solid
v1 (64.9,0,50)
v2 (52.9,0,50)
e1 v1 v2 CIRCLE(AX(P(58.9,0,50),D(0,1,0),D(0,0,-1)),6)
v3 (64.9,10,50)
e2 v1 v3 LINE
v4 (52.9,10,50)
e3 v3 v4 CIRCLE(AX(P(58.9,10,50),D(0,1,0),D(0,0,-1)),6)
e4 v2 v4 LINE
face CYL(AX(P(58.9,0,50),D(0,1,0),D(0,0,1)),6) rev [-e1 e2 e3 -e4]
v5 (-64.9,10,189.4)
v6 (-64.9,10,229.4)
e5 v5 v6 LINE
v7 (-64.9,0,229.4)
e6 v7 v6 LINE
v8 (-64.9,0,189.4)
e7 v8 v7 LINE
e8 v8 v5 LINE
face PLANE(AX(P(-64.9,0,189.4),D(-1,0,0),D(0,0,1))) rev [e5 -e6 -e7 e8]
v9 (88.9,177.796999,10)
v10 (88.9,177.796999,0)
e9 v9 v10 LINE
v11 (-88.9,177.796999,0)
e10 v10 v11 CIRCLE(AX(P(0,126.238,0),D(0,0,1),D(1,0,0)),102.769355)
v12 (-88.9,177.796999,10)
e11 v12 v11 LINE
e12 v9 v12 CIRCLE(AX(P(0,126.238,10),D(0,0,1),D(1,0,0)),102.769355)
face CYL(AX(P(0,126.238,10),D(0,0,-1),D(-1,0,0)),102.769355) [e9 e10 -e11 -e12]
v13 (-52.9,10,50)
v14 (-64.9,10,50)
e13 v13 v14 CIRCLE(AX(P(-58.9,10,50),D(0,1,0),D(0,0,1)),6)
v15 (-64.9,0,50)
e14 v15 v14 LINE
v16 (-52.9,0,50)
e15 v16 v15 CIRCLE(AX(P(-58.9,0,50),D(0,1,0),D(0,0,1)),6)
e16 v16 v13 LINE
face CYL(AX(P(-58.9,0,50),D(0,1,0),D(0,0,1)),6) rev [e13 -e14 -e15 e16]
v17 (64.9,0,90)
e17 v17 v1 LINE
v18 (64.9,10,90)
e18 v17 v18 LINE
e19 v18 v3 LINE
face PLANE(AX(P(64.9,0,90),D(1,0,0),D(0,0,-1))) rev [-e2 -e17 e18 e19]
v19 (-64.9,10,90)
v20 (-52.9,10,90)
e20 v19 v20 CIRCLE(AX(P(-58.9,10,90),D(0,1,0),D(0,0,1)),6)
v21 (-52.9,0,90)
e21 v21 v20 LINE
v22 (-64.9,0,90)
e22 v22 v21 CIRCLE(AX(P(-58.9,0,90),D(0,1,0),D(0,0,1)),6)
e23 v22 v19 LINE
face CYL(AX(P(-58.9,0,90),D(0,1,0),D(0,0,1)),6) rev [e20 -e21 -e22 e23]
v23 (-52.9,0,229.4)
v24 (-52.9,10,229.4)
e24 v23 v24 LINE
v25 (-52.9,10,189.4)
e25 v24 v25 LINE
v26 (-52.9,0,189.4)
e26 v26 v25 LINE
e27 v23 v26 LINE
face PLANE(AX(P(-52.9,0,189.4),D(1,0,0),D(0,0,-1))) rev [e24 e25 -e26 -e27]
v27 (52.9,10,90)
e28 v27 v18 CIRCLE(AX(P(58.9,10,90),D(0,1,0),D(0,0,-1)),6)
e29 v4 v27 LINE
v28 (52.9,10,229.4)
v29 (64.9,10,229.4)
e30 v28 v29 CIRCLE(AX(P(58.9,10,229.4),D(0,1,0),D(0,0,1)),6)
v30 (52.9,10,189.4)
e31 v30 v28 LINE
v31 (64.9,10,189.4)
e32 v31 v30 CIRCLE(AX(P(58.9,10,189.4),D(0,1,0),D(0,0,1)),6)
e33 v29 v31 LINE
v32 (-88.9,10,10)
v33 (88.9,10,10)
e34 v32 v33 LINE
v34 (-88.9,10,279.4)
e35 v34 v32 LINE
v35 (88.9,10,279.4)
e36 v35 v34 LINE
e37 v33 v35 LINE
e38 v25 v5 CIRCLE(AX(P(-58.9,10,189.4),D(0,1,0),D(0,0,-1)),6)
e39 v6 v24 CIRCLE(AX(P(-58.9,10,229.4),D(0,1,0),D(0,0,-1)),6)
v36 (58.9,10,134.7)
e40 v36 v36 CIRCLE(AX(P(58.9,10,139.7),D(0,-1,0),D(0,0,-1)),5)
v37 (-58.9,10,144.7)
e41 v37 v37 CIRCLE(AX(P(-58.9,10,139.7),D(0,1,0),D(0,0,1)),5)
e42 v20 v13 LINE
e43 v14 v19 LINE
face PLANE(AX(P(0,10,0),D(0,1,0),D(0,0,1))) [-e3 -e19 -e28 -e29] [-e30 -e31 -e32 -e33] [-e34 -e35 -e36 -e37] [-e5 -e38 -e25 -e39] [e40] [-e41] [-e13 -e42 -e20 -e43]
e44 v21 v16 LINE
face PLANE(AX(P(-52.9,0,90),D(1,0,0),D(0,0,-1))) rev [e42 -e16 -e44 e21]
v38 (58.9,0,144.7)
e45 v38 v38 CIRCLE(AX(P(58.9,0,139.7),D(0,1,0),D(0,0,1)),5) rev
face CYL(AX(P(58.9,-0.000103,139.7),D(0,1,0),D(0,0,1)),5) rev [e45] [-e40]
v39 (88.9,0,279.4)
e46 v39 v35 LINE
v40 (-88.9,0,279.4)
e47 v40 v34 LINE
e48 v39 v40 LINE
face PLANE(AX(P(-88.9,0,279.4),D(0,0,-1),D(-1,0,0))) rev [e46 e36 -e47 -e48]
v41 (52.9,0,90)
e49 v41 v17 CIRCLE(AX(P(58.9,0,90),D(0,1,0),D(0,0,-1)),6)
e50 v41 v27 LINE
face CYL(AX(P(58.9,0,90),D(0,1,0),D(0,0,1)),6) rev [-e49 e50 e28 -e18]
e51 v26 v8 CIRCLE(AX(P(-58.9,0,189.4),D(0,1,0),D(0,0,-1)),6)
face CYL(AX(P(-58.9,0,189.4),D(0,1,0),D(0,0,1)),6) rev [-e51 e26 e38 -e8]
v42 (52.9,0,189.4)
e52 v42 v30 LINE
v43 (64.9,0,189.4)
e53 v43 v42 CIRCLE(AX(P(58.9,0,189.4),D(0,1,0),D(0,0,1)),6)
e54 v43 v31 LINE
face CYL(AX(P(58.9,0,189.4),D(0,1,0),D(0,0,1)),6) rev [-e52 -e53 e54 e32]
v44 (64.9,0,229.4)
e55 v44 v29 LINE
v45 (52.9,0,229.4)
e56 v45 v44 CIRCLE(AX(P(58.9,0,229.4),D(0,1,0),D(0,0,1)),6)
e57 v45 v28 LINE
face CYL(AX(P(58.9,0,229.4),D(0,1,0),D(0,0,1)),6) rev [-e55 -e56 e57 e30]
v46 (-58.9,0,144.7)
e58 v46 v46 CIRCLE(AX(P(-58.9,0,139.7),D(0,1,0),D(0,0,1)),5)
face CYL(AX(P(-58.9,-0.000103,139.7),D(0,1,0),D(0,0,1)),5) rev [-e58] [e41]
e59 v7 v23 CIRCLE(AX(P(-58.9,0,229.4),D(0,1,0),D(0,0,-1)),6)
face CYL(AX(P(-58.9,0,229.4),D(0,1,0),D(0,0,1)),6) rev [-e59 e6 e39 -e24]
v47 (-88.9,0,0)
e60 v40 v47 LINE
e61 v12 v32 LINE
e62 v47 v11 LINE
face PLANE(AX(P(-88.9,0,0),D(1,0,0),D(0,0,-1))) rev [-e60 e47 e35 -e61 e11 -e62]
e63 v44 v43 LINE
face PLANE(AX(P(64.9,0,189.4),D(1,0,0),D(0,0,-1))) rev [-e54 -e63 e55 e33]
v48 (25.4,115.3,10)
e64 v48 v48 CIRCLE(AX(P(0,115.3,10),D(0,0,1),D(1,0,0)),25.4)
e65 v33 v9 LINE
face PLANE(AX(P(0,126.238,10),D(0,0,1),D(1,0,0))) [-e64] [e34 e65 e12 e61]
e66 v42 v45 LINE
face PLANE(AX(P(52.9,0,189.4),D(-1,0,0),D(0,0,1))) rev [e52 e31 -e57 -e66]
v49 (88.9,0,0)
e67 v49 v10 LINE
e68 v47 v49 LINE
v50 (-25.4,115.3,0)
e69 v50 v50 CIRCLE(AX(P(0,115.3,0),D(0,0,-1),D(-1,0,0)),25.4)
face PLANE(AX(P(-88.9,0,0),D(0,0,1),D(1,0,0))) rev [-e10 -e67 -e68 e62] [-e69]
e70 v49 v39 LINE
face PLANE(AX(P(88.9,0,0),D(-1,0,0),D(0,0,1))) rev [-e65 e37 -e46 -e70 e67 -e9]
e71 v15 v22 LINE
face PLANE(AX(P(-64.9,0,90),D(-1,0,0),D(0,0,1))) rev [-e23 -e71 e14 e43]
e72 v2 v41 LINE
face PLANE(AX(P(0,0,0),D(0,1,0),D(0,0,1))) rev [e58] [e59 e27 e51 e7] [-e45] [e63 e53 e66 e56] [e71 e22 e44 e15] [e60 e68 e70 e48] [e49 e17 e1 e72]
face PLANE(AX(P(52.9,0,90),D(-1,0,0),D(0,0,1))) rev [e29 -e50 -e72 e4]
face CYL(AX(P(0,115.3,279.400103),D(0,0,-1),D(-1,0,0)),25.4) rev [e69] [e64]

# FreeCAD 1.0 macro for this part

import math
import FreeCAD as App
import Part
import Sketcher
from FreeCAD import Vector
Q = App.Units.Quantity


def add_polygon(sketch, points):
    """Adds a closed chain of lines whose ends are joined by coincident constraints."""
    first, n = sketch.GeometryCount, len(points)
    for a, b in zip(points, points[1:] + points[:1]):
        sketch.addGeometry(Part.LineSegment(App.Vector(*a, 0), App.Vector(*b, 0)), False)
    for i in range(n):
        sketch.addConstraint(Sketcher.Constraint("Coincident", first + i, 2, first + (i + 1) % n, 1))

doc = App.newDocument("Part")
body = doc.addObject("PartDesign::Body", "Body")

sketch1 = body.newObject("Sketcher::SketchObject", "Sketch")
sketch1.AttachmentSupport = (doc.getObject("XZ_Plane"), [""])
sketch1.MapMode = "FlatFace"
add_polygon(sketch1, [(88.9, 279.4), (88.9, 0), (-88.9, 0), (-88.9, 279.4)])
sketch1.addConstraint(Sketcher.Constraint("Vertical", 0))
sketch1.addConstraint(Sketcher.Constraint("Horizontal", 1))
sketch1.addConstraint(Sketcher.Constraint("Vertical", 2))
sketch1.addConstraint(Sketcher.Constraint("Horizontal", 3))
sketch1.addConstraint(Sketcher.Constraint("Symmetric", 0, 2, 1, 2, -1, 1))
sketch1.addConstraint(Sketcher.Constraint("DistanceX", 1, 2, 1, 1, Q("177.8 mm")))
sketch1.addConstraint(Sketcher.Constraint("DistanceY", 0, 2, 0, 1, Q("279.4 mm")))
pad1 = body.newObject("PartDesign::Pad", "Pad")
pad1.Profile = sketch1
pad1.Length = 10
pad1.Reversed = True

sketch2 = body.newObject("Sketcher::SketchObject", "Sketch001")
sketch2.AttachmentSupport = (doc.getObject("XY_Plane"), [""])
sketch2.MapMode = "FlatFace"
sketch2.addGeometry(Part.LineSegment(Vector(-88.9, 0, 0), Vector(88.9, 0, 0)), False)
sketch2.addGeometry(Part.LineSegment(Vector(88.9, 0, 0), Vector(88.9, 177.796999, 0)), False)
sketch2.addGeometry(Part.ArcOfCircle(Part.Circle(Vector(0, 126.238, 0), Vector(0, 0, 1), 102.769355), math.radians(30.112286), math.radians(149.887714)), False)
sketch2.addGeometry(Part.LineSegment(Vector(-88.9, 177.796999, 0), Vector(-88.9, 0, 0)), False)
sketch2.addConstraint(Sketcher.Constraint("Coincident", 0, 2, 1, 1))
sketch2.addConstraint(Sketcher.Constraint("Coincident", 1, 2, 2, 1))
sketch2.addConstraint(Sketcher.Constraint("Coincident", 2, 2, 3, 1))
sketch2.addConstraint(Sketcher.Constraint("Coincident", 3, 2, 0, 1))
sketch2.addConstraint(Sketcher.Constraint("Horizontal", 0))
sketch2.addConstraint(Sketcher.Constraint("Vertical", 1))
sketch2.addConstraint(Sketcher.Constraint("Vertical", 3))
sketch2.addConstraint(Sketcher.Constraint("Symmetric", 0, 2, 3, 2, -1, 1))
sketch2.addConstraint(Sketcher.Constraint("PointOnObject", 2, 3, -2))
sketch2.addConstraint(Sketcher.Constraint("DistanceX", 0, 1, 0, 2, Q("177.8 mm")))
sketch2.addConstraint(Sketcher.Constraint("DistanceY", 1, 1, 1, 2, Q("177.796999 mm")))
sketch2.addConstraint(Sketcher.Constraint("DistanceY", -1, 1, 2, 3, Q("126.238 mm")))
pad2 = body.newObject("PartDesign::Pad", "Pad001")
pad2.Profile = sketch2
pad2.Length = 10

sketch3 = body.newObject("Sketcher::SketchObject", "Sketch002")
sketch3.AttachmentSupport = (doc.getObject("XY_Plane"), [""])
sketch3.MapMode = "FlatFace"
sketch3.addGeometry(Part.Circle(Vector(0, 115.3, 0), Vector(0, 0, 1), 25.4), False)
sketch3.addConstraint(Sketcher.Constraint("PointOnObject", 0, 3, -2))
sketch3.addConstraint(Sketcher.Constraint("Diameter", 0, Q("50.8 mm")))
sketch3.addConstraint(Sketcher.Constraint("DistanceY", -1, 1, 0, 3, Q("115.3 mm")))
pocket1 = body.newObject("PartDesign::Pocket", "Pocket")
pocket1.Profile = sketch3
pocket1.Type = "ThroughAll"
pocket1.Reversed = True

sketch4 = body.newObject("Sketcher::SketchObject", "Sketch003")
sketch4.AttachmentSupport = (doc.getObject("XZ_Plane"), [""])
sketch4.MapMode = "FlatFace"
sketch4.AttachmentOffset = App.Placement(Vector(0, 0, -10), App.Rotation())
sketch4.addGeometry(Part.LineSegment(Vector(-64.9, 50, 0), Vector(-64.9, 90, 0)), False)
sketch4.addGeometry(Part.ArcOfCircle(Part.Circle(Vector(-58.9, 90, 0), Vector(0, 0, 1), 6), math.radians(0), math.radians(180)), False)
sketch4.addGeometry(Part.LineSegment(Vector(-52.9, 90, 0), Vector(-52.9, 50, 0)), False)
sketch4.addGeometry(Part.ArcOfCircle(Part.Circle(Vector(-58.9, 50, 0), Vector(0, 0, 1), 6), math.radians(180), math.radians(360)), False)
sketch4.addGeometry(Part.LineSegment(Vector(64.9, 90, 0), Vector(64.9, 50, 0)), False)
sketch4.addGeometry(Part.ArcOfCircle(Part.Circle(Vector(58.9, 50, 0), Vector(0, 0, 1), 6), math.radians(180), math.radians(360)), False)
sketch4.addGeometry(Part.LineSegment(Vector(52.9, 50, 0), Vector(52.9, 90, 0)), False)
sketch4.addGeometry(Part.ArcOfCircle(Part.Circle(Vector(58.9, 90, 0), Vector(0, 0, 1), 6), math.radians(0), math.radians(180)), False)
sketch4.addGeometry(Part.LineSegment(Vector(64.9, 229.4, 0), Vector(64.9, 189.4, 0)), False)
sketch4.addGeometry(Part.ArcOfCircle(Part.Circle(Vector(58.9, 189.4, 0), Vector(0, 0, 1), 6), math.radians(180), math.radians(360)), False)
sketch4.addGeometry(Part.LineSegment(Vector(52.9, 189.4, 0), Vector(52.9, 229.4, 0)), False)
sketch4.addGeometry(Part.ArcOfCircle(Part.Circle(Vector(58.9, 229.4, 0), Vector(0, 0, 1), 6), math.radians(0), math.radians(180)), False)
sketch4.addGeometry(Part.LineSegment(Vector(-64.9, 189.4, 0), Vector(-64.9, 229.4, 0)), False)
sketch4.addGeometry(Part.ArcOfCircle(Part.Circle(Vector(-58.9, 229.4, 0), Vector(0, 0, 1), 6), math.radians(0), math.radians(180)), False)
sketch4.addGeometry(Part.LineSegment(Vector(-52.9, 229.4, 0), Vector(-52.9, 189.4, 0)), False)
sketch4.addGeometry(Part.ArcOfCircle(Part.Circle(Vector(-58.9, 189.4, 0), Vector(0, 0, 1), 6), math.radians(180), math.radians(360)), False)
sketch4.addConstraint(Sketcher.Constraint("Tangent", 0, 2, 1, 2))
sketch4.addConstraint(Sketcher.Constraint("Tangent", 1, 1, 2, 1))
sketch4.addConstraint(Sketcher.Constraint("Tangent", 2, 2, 3, 2))
sketch4.addConstraint(Sketcher.Constraint("Tangent", 3, 1, 0, 1))
sketch4.addConstraint(Sketcher.Constraint("Tangent", 4, 2, 5, 2))
sketch4.addConstraint(Sketcher.Constraint("Tangent", 5, 1, 6, 1))
sketch4.addConstraint(Sketcher.Constraint("Tangent", 6, 2, 7, 2))
sketch4.addConstraint(Sketcher.Constraint("Tangent", 7, 1, 4, 1))
sketch4.addConstraint(Sketcher.Constraint("Tangent", 8, 2, 9, 2))
sketch4.addConstraint(Sketcher.Constraint("Tangent", 9, 1, 10, 1))
sketch4.addConstraint(Sketcher.Constraint("Tangent", 10, 2, 11, 2))
sketch4.addConstraint(Sketcher.Constraint("Tangent", 11, 1, 8, 1))
sketch4.addConstraint(Sketcher.Constraint("Tangent", 12, 2, 13, 2))
sketch4.addConstraint(Sketcher.Constraint("Tangent", 13, 1, 14, 1))
sketch4.addConstraint(Sketcher.Constraint("Tangent", 14, 2, 15, 2))
sketch4.addConstraint(Sketcher.Constraint("Tangent", 15, 1, 12, 1))
sketch4.addConstraint(Sketcher.Constraint("Vertical", 0))
sketch4.addConstraint(Sketcher.Constraint("Vertical", 2))
sketch4.addConstraint(Sketcher.Constraint("Vertical", 4))
sketch4.addConstraint(Sketcher.Constraint("Vertical", 6))
sketch4.addConstraint(Sketcher.Constraint("Vertical", 8))
sketch4.addConstraint(Sketcher.Constraint("Vertical", 10))
sketch4.addConstraint(Sketcher.Constraint("Vertical", 12))
sketch4.addConstraint(Sketcher.Constraint("Vertical", 14))
sketch4.addConstraint(Sketcher.Constraint("Equal", 3, 5))
sketch4.addConstraint(Sketcher.Constraint("Equal", 7, 9))
sketch4.addConstraint(Sketcher.Constraint("Equal", 11, 13))
sketch4.addConstraint(Sketcher.Constraint("Symmetric", 3, 3, 5, 3, -2))
sketch4.addConstraint(Sketcher.Constraint("Symmetric", 11, 3, 13, 3, -2))
sketch4.addConstraint(Sketcher.Constraint("Horizontal", 1, 3, 7, 3))
sketch4.addConstraint(Sketcher.Constraint("Horizontal", 9, 3, 15, 3))
sketch4.addConstraint(Sketcher.Constraint("Vertical", 7, 3, 9, 3))
sketch4.addConstraint(Sketcher.Constraint("Equal", 6, 8))
sketch4.addConstraint(Sketcher.Constraint("Radius", 1, Q("6 mm")))
sketch4.addConstraint(Sketcher.Constraint("DistanceY", 0, 1, 0, 2, Q("40 mm")))
sketch4.addConstraint(Sketcher.Constraint("DistanceY", -1, 1, 1, 3, Q("90 mm")))
sketch4.addConstraint(Sketcher.Constraint("DistanceX", 1, 3, -1, 1, Q("58.9 mm")))
sketch4.addConstraint(Sketcher.Constraint("DistanceY", -1, 1, 9, 3, Q("189.4 mm")))
pocket2 = body.newObject("PartDesign::Pocket", "Pocket001")
pocket2.Profile = sketch4
pocket2.Length = 10
pocket2.Reversed = True

sketch5 = body.newObject("Sketcher::SketchObject", "Sketch004")
sketch5.AttachmentSupport = (doc.getObject("XZ_Plane"), [""])
sketch5.MapMode = "FlatFace"
sketch5.AttachmentOffset = App.Placement(Vector(0, 0, -10), App.Rotation())
sketch5.addGeometry(Part.Circle(Vector(-58.9, 139.7, 0), Vector(0, 0, 1), 5), False)
sketch5.addGeometry(Part.Circle(Vector(58.9, 139.7, 0), Vector(0, 0, 1), 5), False)
sketch5.addConstraint(Sketcher.Constraint("Equal", 0, 1))
sketch5.addConstraint(Sketcher.Constraint("Symmetric", 0, 3, 1, 3, -2))
sketch5.addConstraint(Sketcher.Constraint("Diameter", 0, Q("10 mm")))
sketch5.addConstraint(Sketcher.Constraint("DistanceX", 0, 3, -1, 1, Q("58.9 mm")))
sketch5.addConstraint(Sketcher.Constraint("DistanceY", -1, 1, 0, 3, Q("139.7 mm")))
pocket3 = body.newObject("PartDesign::Pocket", "Pocket002")
pocket3.Profile = sketch5
pocket3.Type = "ThroughAll"
pocket3.Reversed = True

doc.recompute()
